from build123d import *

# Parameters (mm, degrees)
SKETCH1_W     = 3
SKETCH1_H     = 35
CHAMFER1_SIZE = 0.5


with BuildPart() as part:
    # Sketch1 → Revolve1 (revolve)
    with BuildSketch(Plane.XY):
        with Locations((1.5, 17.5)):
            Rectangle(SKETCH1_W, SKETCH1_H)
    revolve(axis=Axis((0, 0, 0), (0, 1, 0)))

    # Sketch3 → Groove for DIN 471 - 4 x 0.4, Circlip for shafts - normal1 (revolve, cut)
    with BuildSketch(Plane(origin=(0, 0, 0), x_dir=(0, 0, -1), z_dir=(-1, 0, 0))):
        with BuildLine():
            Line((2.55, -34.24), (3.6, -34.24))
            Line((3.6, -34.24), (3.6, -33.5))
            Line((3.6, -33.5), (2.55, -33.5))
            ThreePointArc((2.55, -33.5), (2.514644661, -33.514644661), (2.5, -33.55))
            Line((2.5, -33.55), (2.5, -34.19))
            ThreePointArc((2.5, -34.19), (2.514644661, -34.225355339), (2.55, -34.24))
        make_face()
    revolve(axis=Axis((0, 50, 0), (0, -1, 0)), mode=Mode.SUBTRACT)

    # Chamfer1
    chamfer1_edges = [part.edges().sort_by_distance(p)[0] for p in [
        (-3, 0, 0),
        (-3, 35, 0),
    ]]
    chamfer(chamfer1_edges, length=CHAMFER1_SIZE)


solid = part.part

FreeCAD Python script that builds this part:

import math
import FreeCAD as App
import Part
import Sketcher
from FreeCAD import Vector


def edges_at(feature, points):
    """Names of the edges that pass closest to the given points."""
    edges = feature.Shape.Edges
    near = lambda p: min(range(len(edges)), key=lambda i: edges[i].distToShape(Part.Vertex(*p))[0])
    return sorted({f"Edge{near(p) + 1}" for p in points})


def add_polygon(sketch, points):
    """Adds a closed chain of lines whose ends are joined by coincident constraints."""
    first, n = sketch.GeometryCount, len(points)
    for a, b in zip(points, points[1:] + points[:1]):
        sketch.addGeometry(Part.LineSegment(App.Vector(*a, 0), App.Vector(*b, 0)), False)
    for i in range(n):
        sketch.addConstraint(Sketcher.Constraint("Coincident", first + i, 2, first + (i + 1) % n, 1))

doc = App.newDocument("Part")
body = doc.addObject("PartDesign::Body", "Body")

sketch1 = body.newObject("Sketcher::SketchObject", "Sketch")
sketch1.AttachmentSupport = (doc.getObject("XY_Plane"), [""])
sketch1.MapMode = "FlatFace"
add_polygon(sketch1, [(0, 35), (0, 0), (3, 0), (3, 35)])
sketch1.addConstraint([
    Sketcher.Constraint("Vertical", 0),
    Sketcher.Constraint("Horizontal", 1),
    Sketcher.Constraint("Vertical", 2),
    Sketcher.Constraint("Horizontal", 3),
    Sketcher.Constraint("Coincident", 0, 2, -1, 1),
    Sketcher.Constraint("DistanceX", 1, 1, 1, 2, 3.0),
    Sketcher.Constraint("DistanceY", 0, 2, 0, 1, 35.0),
])
revolution = body.newObject("PartDesign::Revolution", "Revolution")
revolution.Profile = sketch1
revolution.ReferenceAxis = (sketch1, ["V_Axis"])
revolution.Angle = 360

sketch2 = body.newObject("Sketcher::SketchObject", "Sketch001")
sketch2.AttachmentSupport = (doc.getObject("YZ_Plane"), [""])
sketch2.MapMode = "FlatFace"
sketch2.addGeometry([
    Part.LineSegment(Vector(34.24, -2.55, 0), Vector(34.24, -3.6, 0)),
    Part.LineSegment(Vector(34.24, -3.6, 0), Vector(33.5, -3.6, 0)),
    Part.LineSegment(Vector(33.5, -3.6, 0), Vector(33.5, -2.55, 0)),
    Part.ArcOfCircle(Part.Circle(Vector(33.55, -2.55, 0), Vector(0, 0, 1), 0.05), math.radians(90), math.radians(180)),
    Part.LineSegment(Vector(33.55, -2.5, 0), Vector(34.19, -2.5, 0)),
    Part.ArcOfCircle(Part.Circle(Vector(34.19, -2.55, 0), Vector(0, 0, 1), 0.05), math.radians(0), math.radians(90)),
], False)
sketch2.addConstraint([
    Sketcher.Constraint("Coincident", 0, 2, 1, 1),
    Sketcher.Constraint("Coincident", 1, 2, 2, 1),
    Sketcher.Constraint("Tangent", 2, 2, 3, 2),
    Sketcher.Constraint("Tangent", 3, 1, 4, 1),
    Sketcher.Constraint("Tangent", 4, 2, 5, 2),
    Sketcher.Constraint("Tangent", 5, 1, 0, 1),
    Sketcher.Constraint("Vertical", 0),
    Sketcher.Constraint("Horizontal", 1),
    Sketcher.Constraint("Vertical", 2),
    Sketcher.Constraint("Horizontal", 4),
    Sketcher.Constraint("Equal", 3, 5),
    Sketcher.Constraint("Radius", 3, 0.05),
    Sketcher.Constraint("DistanceX", 1, 2, 1, 1, 0.74),
    Sketcher.Constraint("DistanceY", 0, 2, 0, 1, 1.05),
    Sketcher.Constraint("DistanceY", 0, 2, -1, 1, 3.6),
    Sketcher.Constraint("DistanceX", -1, 1, 1, 2, 33.5),
])
groove = body.newObject("PartDesign::Groove", "Groove")
groove.Profile = sketch2
groove.ReferenceAxis = (sketch2, ["H_Axis"])
groove.Angle = 360
doc.recompute()

chamfer = body.newObject("PartDesign::Chamfer", "Chamfer")
chamfer.Base = (groove, edges_at(groove, [(-3, 0, 0), (-3, 35, 0)]))
chamfer.Size = 0.5

doc.recompute()
